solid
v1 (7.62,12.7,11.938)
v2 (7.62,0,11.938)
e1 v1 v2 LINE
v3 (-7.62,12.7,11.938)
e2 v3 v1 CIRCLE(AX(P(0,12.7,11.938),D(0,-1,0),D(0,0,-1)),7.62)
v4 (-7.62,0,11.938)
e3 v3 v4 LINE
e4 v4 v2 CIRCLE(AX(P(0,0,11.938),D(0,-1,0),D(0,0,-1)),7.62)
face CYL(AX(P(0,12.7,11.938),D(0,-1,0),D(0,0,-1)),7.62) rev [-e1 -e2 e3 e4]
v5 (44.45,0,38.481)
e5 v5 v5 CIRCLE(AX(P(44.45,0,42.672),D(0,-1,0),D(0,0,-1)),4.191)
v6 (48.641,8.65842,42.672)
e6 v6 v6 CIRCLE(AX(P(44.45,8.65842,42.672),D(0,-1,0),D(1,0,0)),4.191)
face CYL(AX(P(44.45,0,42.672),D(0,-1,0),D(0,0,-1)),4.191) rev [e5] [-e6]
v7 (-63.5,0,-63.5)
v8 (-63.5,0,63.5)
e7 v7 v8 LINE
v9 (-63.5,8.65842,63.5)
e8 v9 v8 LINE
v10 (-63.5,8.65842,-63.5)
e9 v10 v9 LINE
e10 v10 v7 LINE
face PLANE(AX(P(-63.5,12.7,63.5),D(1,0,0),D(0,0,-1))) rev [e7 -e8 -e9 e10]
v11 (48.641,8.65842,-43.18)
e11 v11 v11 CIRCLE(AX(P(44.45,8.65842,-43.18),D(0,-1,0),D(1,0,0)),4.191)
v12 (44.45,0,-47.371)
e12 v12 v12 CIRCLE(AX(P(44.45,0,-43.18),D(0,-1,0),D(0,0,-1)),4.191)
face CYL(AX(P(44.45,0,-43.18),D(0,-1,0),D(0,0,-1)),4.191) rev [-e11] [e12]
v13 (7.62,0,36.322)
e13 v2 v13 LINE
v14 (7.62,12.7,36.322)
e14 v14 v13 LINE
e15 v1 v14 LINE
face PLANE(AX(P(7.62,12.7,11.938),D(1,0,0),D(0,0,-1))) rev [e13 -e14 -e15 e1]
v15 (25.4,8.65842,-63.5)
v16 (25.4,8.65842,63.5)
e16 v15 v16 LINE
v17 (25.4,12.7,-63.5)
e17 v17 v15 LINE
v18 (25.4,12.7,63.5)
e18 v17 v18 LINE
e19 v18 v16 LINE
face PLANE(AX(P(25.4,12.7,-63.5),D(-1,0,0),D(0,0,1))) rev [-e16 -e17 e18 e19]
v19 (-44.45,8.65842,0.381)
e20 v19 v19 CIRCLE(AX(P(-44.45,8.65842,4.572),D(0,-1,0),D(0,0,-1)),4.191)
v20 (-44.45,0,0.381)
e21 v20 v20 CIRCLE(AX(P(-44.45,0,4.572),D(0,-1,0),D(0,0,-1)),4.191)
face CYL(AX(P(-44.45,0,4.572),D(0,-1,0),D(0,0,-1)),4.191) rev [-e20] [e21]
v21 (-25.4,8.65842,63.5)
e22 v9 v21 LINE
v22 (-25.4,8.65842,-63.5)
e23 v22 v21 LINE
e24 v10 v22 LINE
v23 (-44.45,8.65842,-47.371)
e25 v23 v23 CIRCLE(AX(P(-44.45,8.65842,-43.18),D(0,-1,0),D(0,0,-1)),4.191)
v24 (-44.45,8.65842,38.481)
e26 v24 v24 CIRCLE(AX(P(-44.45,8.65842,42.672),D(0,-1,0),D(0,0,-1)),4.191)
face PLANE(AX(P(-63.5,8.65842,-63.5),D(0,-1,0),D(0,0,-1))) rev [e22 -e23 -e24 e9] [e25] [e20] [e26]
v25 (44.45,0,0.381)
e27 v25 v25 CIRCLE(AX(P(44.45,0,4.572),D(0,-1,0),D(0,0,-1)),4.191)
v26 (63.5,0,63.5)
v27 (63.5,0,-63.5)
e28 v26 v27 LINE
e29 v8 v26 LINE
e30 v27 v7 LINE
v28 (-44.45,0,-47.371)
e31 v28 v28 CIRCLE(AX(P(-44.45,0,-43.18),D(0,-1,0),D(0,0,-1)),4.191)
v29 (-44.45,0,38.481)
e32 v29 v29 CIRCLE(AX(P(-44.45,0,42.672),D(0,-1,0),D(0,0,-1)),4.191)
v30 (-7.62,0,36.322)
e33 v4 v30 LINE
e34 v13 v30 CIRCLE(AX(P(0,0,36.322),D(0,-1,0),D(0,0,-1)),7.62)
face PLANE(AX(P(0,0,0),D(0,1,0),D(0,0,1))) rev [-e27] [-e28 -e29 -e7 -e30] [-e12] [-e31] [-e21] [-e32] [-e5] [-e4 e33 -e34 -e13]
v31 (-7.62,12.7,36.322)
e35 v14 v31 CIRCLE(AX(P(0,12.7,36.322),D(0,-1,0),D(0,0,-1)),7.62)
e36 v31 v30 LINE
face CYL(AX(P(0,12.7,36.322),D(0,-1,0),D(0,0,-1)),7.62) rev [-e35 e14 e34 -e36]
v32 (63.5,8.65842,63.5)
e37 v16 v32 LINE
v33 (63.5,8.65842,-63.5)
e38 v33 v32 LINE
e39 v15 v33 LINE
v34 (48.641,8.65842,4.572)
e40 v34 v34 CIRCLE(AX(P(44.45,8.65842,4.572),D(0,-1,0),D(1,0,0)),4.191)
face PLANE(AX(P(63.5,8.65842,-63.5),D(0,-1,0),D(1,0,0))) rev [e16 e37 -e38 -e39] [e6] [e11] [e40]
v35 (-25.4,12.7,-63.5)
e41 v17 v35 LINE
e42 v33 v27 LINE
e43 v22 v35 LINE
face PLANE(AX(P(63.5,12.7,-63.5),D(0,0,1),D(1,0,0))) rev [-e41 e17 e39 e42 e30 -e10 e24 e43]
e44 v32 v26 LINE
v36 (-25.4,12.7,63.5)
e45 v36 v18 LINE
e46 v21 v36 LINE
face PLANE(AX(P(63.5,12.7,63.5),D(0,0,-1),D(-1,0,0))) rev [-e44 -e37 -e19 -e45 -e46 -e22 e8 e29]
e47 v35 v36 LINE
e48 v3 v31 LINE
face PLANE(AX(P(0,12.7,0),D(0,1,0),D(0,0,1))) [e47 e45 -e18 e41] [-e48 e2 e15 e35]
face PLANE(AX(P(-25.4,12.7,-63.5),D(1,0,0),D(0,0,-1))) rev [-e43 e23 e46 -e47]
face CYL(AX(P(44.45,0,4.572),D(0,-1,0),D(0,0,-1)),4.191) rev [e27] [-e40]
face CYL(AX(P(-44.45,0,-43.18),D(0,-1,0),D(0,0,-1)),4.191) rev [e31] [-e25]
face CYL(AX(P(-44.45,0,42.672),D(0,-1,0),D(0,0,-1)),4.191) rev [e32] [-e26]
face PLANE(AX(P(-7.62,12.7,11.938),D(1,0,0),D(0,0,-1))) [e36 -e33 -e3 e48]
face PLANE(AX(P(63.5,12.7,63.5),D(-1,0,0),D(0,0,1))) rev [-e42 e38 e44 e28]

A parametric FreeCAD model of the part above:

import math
import FreeCAD as App
import Part
import Sketcher

V = App.Vector
Q = App.Units.Quantity

doc = App.newDocument("Part")
body = doc.addObject("PartDesign::Body", "Body")

# Sketch on XZ plane
sketch1 = doc.addObject("Sketcher::SketchObject", "Sketch")
body.addObject(sketch1)
sketch1.AttachmentSupport = (doc.XZ_Plane, [""])
sketch1.MapMode = "FlatFace"
sketch1.addGeometry([
    Part.LineSegment(V(-64, -64, 0), V(-64, 64, 0)),
    Part.LineSegment(V(-64, 64, 0), V(64, 64, 0)),
    Part.LineSegment(V(64, 64, 0), V(64, -64, 0)),
    Part.LineSegment(V(64, -64, 0), V(-64, -64, 0)),
], False)
sketch1.addConstraint([
    Sketcher.Constraint("Coincident", 0, 2, 1, 1),
    Sketcher.Constraint("Coincident", 1, 2, 2, 1),
    Sketcher.Constraint("Coincident", 2, 2, 3, 1),
    Sketcher.Constraint("Coincident", 3, 2, 0, 1),
    Sketcher.Constraint("Vertical", 0),
    Sketcher.Constraint("Horizontal", 1),
    Sketcher.Constraint("Vertical", 2),
    Sketcher.Constraint("Horizontal", 3),
    Sketcher.Constraint("Symmetric", 0, 2, 2, 2, -1, 1),
    Sketcher.Constraint("Equal", 3, 0),
    Sketcher.Constraint("DistanceX", 1, 1, 1, 2, Q("5 in")),
])
pad1 = doc.addObject("PartDesign::Pad", "Pad")
body.addObject(pad1)
pad1.Profile = sketch1
pad1.Length = Q("0.5 in")
pad1.Reversed = True

# Sketch on XY plane
sketch2 = doc.addObject("Sketcher::SketchObject", "Sketch001")
body.addObject(sketch2)
sketch2.AttachmentSupport = (doc.XY_Plane, [""])
sketch2.MapMode = "FlatFace"
sketch2.AttachmentOffset = App.Placement(V(0, 0, 2.5 * 25.4), App.Rotation())
sketch2.addGeometry([
    Part.LineSegment(V(-63.5, 12.7, 0), V(-63.5, 8.7, 0)),  # 0
    Part.LineSegment(V(-63.5, 8.7, 0), V(-25.4, 8.7, 0)),  # 1
    Part.LineSegment(V(-25.4, 8.7, 0), V(-25.4, 12.7, 0)),  # 2
    Part.LineSegment(V(-25.4, 12.7, 0), V(-63.5, 12.7, 0)),  # 3
    Part.LineSegment(V(25.4, 12.7, 0), V(25.4, 8.7, 0)),  # 4
    Part.LineSegment(V(25.4, 8.7, 0), V(63.5, 8.7, 0)),  # 5
    Part.LineSegment(V(63.5, 8.7, 0), V(63.5, 12.7, 0)),  # 6
    Part.LineSegment(V(63.5, 12.7, 0), V(25.4, 12.7, 0)),  # 7
], False)
sketch2.addConstraint([
    Sketcher.Constraint("Coincident", 0, 2, 1, 1),
    Sketcher.Constraint("Coincident", 1, 2, 2, 1),
    Sketcher.Constraint("Coincident", 2, 2, 3, 1),
    Sketcher.Constraint("Coincident", 3, 2, 0, 1),
    Sketcher.Constraint("Coincident", 4, 2, 5, 1),
    Sketcher.Constraint("Coincident", 5, 2, 6, 1),
    Sketcher.Constraint("Coincident", 6, 2, 7, 1),
    Sketcher.Constraint("Coincident", 7, 2, 4, 1),
    Sketcher.Constraint("Vertical", 0),
    Sketcher.Constraint("Horizontal", 1),
    Sketcher.Constraint("Vertical", 2),
    Sketcher.Constraint("Horizontal", 3),
    Sketcher.Constraint("Vertical", 4),
    Sketcher.Constraint("Horizontal", 5),
    Sketcher.Constraint("Vertical", 6),
    Sketcher.Constraint("Horizontal", 7),
    Sketcher.Constraint("Symmetric", 1, 2, 4, 2, -2),
    Sketcher.Constraint("Symmetric", 3, 2, 6, 2, -2),
    Sketcher.Constraint("DistanceX", 1, 1, 1, 2, Q("1.5 in")),
    Sketcher.Constraint("DistanceX", 1, 2, -1, 1, Q("1 in")),
    Sketcher.Constraint("DistanceY", -1, 1, 2, 2, Q("0.5 in")),
    Sketcher.Constraint("DistanceY", 0, 2, 0, 1, Q("4.04158 mm")),
])
pocket1 = doc.addObject("PartDesign::Pocket", "Pocket")
body.addObject(pocket1)
pocket1.Profile = sketch2
pocket1.Type = "ThroughAll"

# Sketch on XZ plane
sketch3 = doc.addObject("Sketcher::SketchObject", "Sketch002")
body.addObject(sketch3)
sketch3.AttachmentSupport = (doc.XZ_Plane, [""])
sketch3.MapMode = "FlatFace"
sketch3.addGeometry([
    Part.Circle(V(44.5, -43.2, 0), V(0, 0, 1), 4.2),  # 0
    Part.Circle(V(44.5, 4.6, 0), V(0, 0, 1), 4.2),  # 1
    Part.Circle(V(44.5, 42.7, 0), V(0, 0, 1), 4.2),  # 2
    Part.Circle(V(-44.5, -43.2, 0), V(0, 0, 1), 4.2),  # 3
    Part.Circle(V(-44.5, 4.6, 0), V(0, 0, 1), 4.2),  # 4
    Part.Circle(V(-44.5, 42.7, 0), V(0, 0, 1), 4.2),  # 5
], False)
sketch3.addConstraint([
    Sketcher.Constraint("Equal", 0, 1),
    Sketcher.Constraint("Equal", 1, 2),
    Sketcher.Constraint("Equal", 2, 3),
    Sketcher.Constraint("Equal", 3, 4),
    Sketcher.Constraint("Equal", 4, 5),
    Sketcher.Constraint("Symmetric", 0, 3, 3, 3, -2),
    Sketcher.Constraint("Symmetric", 1, 3, 4, 3, -2),
    Sketcher.Constraint("Symmetric", 2, 3, 5, 3, -2),
    Sketcher.Constraint("Vertical", 0, 3, 1, 3),
    Sketcher.Constraint("Vertical", 1, 3, 2, 3),
    Sketcher.Constraint("Diameter", 0, Q("0.33 in")),
    Sketcher.Constraint("DistanceY", 0, 3, -1, 1, Q("1.7 in")),
    Sketcher.Constraint("DistanceY", 1, 3, 2, 3, Q("1.5 in")),
    Sketcher.Constraint("DistanceX", 3, 3, 0, 3, Q("3.5 in")),
    Sketcher.Constraint("DistanceY", -1, 1, 1, 3, Q("0.18 in")),
])
doc.recompute()
hole = doc.addObject("PartDesign::Hole", "Hole")
body.addObject(hole)
hole.Profile = sketch3
hole.ThreadType = "None"
hole.Diameter = Q("0.33 in")
hole.DepthType = "ThroughAll"

# Sketch on XZ plane
sketch4 = doc.addObject("Sketcher::SketchObject", "Sketch003")
body.addObject(sketch4)
sketch4.AttachmentSupport = (doc.XZ_Plane, [""])
sketch4.MapMode = "FlatFace"
sketch4.addGeometry([
    Part.LineSegment(V(-8, 36, 0), V(-8, 12, 0)),
    Part.ArcOfCircle(Part.Circle(V(0, 12, 0), V(0, 0, 1), 8), math.radians(180), math.radians(360)),
    Part.LineSegment(V(8, 12, 0), V(8, 36, 0)),
    Part.ArcOfCircle(Part.Circle(V(0, 36, 0), V(0, 0, 1), 8), math.radians(0), math.radians(180)),
], False)
sketch4.addConstraint([
    Sketcher.Constraint("Tangent", 0, 2, 1, 1),
    Sketcher.Constraint("Tangent", 1, 2, 2, 1),
    Sketcher.Constraint("Tangent", 2, 2, 3, 1),
    Sketcher.Constraint("Tangent", 3, 2, 0, 1),
    Sketcher.Constraint("Vertical", 0),
    Sketcher.Constraint("Vertical", 2),
    Sketcher.Constraint("PointOnObject", 1, 3, -2),
    Sketcher.Constraint("Radius", 1, Q("0.3 in")),
    Sketcher.Constraint("DistanceY", 0, 2, 0, 1, Q("0.96 in")),
    Sketcher.Constraint("DistanceY", -1, 1, 1, 3, Q("0.47 in")),
])
pocket2 = doc.addObject("PartDesign::Pocket", "Pocket001")
body.addObject(pocket2)
pocket2.Profile = sketch4
pocket2.Type = "ThroughAll"

doc.recompute()
